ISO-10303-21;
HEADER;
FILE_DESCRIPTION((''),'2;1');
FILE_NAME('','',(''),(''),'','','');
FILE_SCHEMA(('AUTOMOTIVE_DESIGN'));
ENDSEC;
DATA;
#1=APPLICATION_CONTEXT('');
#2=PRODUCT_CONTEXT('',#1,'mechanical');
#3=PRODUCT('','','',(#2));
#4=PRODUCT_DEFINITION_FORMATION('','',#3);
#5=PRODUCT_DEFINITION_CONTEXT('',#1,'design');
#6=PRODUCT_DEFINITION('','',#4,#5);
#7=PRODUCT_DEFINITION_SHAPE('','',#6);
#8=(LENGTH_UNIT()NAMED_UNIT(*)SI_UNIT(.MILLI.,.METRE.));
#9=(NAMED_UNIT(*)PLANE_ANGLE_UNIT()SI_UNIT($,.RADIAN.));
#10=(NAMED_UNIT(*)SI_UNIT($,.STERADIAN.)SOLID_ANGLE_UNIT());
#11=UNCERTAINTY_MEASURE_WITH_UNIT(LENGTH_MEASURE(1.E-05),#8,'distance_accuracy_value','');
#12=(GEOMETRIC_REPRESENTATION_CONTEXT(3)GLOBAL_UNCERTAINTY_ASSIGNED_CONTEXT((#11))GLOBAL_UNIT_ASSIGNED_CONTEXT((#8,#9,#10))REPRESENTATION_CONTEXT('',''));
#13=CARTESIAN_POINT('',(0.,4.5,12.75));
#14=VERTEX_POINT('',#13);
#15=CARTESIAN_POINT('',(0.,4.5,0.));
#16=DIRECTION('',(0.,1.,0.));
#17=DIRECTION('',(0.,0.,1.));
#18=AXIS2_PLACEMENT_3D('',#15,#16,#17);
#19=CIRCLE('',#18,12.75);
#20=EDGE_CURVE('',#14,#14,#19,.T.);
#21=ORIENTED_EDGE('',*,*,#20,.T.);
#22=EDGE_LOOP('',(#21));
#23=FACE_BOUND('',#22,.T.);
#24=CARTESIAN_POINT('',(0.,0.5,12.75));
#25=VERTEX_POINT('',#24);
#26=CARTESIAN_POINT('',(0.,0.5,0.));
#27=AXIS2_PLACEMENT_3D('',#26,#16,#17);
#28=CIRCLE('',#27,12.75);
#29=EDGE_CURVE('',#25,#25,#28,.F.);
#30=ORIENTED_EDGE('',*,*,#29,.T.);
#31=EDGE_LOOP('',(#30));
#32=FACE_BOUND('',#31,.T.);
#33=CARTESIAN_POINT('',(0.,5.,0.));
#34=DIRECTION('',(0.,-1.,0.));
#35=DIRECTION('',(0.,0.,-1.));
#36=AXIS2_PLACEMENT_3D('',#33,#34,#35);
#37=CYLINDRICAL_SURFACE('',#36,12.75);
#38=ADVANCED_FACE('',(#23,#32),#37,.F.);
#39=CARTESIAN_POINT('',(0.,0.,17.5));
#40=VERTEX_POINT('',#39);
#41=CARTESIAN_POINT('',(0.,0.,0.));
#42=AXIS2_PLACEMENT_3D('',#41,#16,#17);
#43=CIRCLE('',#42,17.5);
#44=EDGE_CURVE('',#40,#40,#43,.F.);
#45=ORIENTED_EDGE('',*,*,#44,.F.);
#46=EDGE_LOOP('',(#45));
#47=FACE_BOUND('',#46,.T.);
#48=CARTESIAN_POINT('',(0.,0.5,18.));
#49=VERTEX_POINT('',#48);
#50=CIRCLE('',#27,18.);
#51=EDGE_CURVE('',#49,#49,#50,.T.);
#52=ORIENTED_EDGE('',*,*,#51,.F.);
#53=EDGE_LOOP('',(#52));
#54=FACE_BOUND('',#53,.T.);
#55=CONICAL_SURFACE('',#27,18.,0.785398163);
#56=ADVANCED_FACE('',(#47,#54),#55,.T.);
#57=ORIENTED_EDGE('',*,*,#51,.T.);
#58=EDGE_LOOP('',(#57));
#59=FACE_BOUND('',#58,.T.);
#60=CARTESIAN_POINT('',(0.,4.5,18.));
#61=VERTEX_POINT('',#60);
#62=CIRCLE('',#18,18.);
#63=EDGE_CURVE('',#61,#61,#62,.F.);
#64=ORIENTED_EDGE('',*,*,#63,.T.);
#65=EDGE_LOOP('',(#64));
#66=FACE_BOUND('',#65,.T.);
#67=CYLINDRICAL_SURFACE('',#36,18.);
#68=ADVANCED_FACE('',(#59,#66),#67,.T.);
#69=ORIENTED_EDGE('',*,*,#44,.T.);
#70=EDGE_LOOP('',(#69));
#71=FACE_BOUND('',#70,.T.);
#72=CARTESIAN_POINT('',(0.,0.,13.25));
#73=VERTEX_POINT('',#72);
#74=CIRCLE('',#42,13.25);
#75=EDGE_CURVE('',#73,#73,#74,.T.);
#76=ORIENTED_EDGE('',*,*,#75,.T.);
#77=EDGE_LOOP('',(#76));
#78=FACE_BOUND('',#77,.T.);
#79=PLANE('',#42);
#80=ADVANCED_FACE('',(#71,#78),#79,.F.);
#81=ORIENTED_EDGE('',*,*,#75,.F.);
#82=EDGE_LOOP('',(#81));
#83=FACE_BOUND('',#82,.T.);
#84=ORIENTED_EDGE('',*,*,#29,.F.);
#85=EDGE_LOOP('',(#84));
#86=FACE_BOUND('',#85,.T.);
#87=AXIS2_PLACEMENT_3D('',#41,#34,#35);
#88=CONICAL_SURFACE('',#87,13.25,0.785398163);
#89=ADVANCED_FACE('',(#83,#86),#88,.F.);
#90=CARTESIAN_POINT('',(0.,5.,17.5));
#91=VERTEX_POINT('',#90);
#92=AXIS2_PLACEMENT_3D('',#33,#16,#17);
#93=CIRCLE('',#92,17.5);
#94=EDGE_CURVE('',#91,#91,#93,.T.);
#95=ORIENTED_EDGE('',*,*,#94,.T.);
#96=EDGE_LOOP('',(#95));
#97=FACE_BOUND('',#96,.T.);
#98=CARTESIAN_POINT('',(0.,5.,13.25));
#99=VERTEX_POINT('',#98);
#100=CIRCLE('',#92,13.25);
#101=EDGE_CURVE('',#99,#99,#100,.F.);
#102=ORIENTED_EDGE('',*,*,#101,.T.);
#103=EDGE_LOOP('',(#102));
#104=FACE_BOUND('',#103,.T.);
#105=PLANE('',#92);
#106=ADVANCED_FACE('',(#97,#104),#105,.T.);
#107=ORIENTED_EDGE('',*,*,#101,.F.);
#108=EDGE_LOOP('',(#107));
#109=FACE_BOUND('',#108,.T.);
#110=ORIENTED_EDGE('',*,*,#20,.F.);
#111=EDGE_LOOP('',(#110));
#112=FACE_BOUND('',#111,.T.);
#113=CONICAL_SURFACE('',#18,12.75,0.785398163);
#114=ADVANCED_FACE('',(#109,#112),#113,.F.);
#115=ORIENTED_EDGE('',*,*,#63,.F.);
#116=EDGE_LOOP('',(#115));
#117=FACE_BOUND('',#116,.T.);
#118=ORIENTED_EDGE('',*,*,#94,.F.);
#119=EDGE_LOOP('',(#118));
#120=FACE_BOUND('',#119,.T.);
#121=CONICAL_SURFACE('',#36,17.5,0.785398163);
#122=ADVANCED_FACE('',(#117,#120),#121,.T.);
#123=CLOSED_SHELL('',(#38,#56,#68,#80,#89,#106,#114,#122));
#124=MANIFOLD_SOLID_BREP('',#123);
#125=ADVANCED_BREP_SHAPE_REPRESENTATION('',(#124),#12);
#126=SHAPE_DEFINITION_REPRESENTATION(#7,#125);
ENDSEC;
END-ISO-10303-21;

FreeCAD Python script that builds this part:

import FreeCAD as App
import Part
import Sketcher
from FreeCAD import Vector


def edges_at(feature, points):
    """Names of the edges that pass closest to the given points."""
    edges = feature.Shape.Edges
    near = lambda p: min(range(len(edges)), key=lambda i: edges[i].distToShape(Part.Vertex(*p))[0])
    return sorted({f"Edge{near(p) + 1}" for p in points})

doc = App.newDocument("Part")
params = doc.addObject("Spreadsheet::Sheet", "Params")
for row, (alias, value) in enumerate([
    ("sketch1_diameter", "36 mm"),
    ("sketch1_diameter2", "25.5 mm"),
    ("pad1_length", "5 mm"),
    ("chamfer_size", "0.5 mm"),
], start=1):
    params.set(f"A{row}", alias)
    params.set(f"B{row}", "=" + value)
    params.setAlias(f"B{row}", alias)

body = doc.addObject("PartDesign::Body", "Body")

# Sketch on XZ plane
sketch1 = body.newObject("Sketcher::SketchObject", "Sketch")
sketch1.AttachmentSupport = (doc.getObject("XZ_Plane"), [""])
sketch1.MapMode = "FlatFace"
sketch1.addGeometry([
    Part.Circle(Vector(0, 0, 0), Vector(0, 0, 1), 18),
    Part.Circle(Vector(0, 0, 0), Vector(0, 0, 1), 13),
], False)
sketch1.addConstraint([
    Sketcher.Constraint("Coincident", 0, 3, -1, 1),
    Sketcher.Constraint("Coincident", 1, 3, -1, 1),
    Sketcher.Constraint("Diameter", 0, 36.0),
    Sketcher.Constraint("Diameter", 1, 25.5),
])
sketch1.setExpression("Constraints[2]", "Params.sketch1_diameter")
sketch1.setExpression("Constraints[3]", "Params.sketch1_diameter2")
pad1 = body.newObject("PartDesign::Pad", "Pad")
pad1.Profile = sketch1
pad1.setExpression("Length", "Params.pad1_length")
pad1.Reversed = True
doc.recompute()

chamfer = body.newObject("PartDesign::Chamfer", "Chamfer")
chamfer.Base = (pad1, edges_at(pad1, [
    (0, 0, -18),
    (0, 5, -18),
    (0, 0, -12.75),
    (0, 5, -12.75),
]))
chamfer.setExpression("Size", "Params.chamfer_size")

doc.recompute()
